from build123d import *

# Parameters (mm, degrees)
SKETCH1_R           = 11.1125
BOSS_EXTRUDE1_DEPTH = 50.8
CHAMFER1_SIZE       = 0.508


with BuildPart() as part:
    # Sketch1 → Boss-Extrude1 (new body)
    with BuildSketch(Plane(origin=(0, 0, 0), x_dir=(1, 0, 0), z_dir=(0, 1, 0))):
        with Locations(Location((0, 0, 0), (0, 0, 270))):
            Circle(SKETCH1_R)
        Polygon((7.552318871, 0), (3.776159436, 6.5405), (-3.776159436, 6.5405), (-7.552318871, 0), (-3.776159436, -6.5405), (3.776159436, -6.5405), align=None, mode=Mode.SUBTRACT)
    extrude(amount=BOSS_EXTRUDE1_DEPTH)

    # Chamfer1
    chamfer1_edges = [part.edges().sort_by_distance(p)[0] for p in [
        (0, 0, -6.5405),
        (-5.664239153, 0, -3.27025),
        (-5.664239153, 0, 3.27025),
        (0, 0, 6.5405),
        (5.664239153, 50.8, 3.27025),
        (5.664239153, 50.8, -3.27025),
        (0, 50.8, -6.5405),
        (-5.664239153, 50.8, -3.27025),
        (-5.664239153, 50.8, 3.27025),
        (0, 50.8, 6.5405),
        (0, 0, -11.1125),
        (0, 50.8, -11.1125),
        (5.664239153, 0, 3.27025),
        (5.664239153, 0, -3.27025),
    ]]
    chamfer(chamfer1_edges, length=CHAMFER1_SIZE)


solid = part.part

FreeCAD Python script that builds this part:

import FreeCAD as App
import Part
import Sketcher

V = App.Vector
Q = App.Units.Quantity


def edges_at(feature, points):
    """Names of the edges that pass closest to the given points."""
    edges = feature.Shape.Edges
    near = lambda p: min(range(len(edges)), key=lambda i: edges[i].distToShape(Part.Vertex(*p))[0])
    return sorted({f"Edge{near(p) + 1}" for p in points})


def add_polygon(sketch, points):
    """Adds a closed chain of lines whose ends are joined by coincident constraints."""
    first, n = sketch.GeometryCount, len(points)
    for a, b in zip(points, points[1:] + points[:1]):
        sketch.addGeometry(Part.LineSegment(App.Vector(*a, 0), App.Vector(*b, 0)), False)
    for i in range(n):
        sketch.addConstraint(Sketcher.Constraint("Coincident", first + i, 2, first + (i + 1) % n, 1))

doc = App.newDocument("Part")
body = doc.addObject("PartDesign::Body", "Body")

# Sketch on XZ plane
sketch1 = doc.addObject("Sketcher::SketchObject", "Sketch")
body.addObject(sketch1)
sketch1.AttachmentSupport = (doc.XZ_Plane, [""])
sketch1.MapMode = "FlatFace"
sketch1.addGeometry(Part.Circle(V(0, 0, 0), V(0, 0, 1), 11), False)  # 0
add_polygon(sketch1, [(4, -7), (8, 0), (4, 7), (-4, 7), (-8, 0), (-4, -7)])  # lines 1-6
sketch1.addConstraint([
    Sketcher.Constraint("Horizontal", 3),
    Sketcher.Constraint("Horizontal", 6),
    Sketcher.Constraint("Coincident", 0, 3, -1, 1),
    Sketcher.Constraint("Symmetric", 1, 2, 4, 2, -1, 1),
    Sketcher.Constraint("Symmetric", 2, 2, 5, 2, -1, 1),
    Sketcher.Constraint("PointOnObject", 1, 2, -1),
    Sketcher.Constraint("Parallel", 1, 4),
    Sketcher.Constraint("Vertical", 3, 2, 5, 2),
    Sketcher.Constraint("Diameter", 0, Q("0.875 in")),
    Sketcher.Constraint("Angle", 1, Q("60 deg")),
    Sketcher.Constraint("DistanceY", 5, 2, 3, 2, Q("0.515 in")),
    Sketcher.Constraint("DistanceX", 3, 2, 3, 1, Q("7.552319 mm")),
])
pad1 = doc.addObject("PartDesign::Pad", "Pad")
body.addObject(pad1)
pad1.Profile = sketch1
pad1.Length = Q("2 in")
pad1.Reversed = True
doc.recompute()

chamfer = doc.addObject("PartDesign::Chamfer", "Chamfer")
body.addObject(chamfer)
chamfer.Base = (pad1, edges_at(pad1, [
    (0, 0, -6.54),
    (-5.664, 0, -3.27),
    (-5.664, 0, 3.27),
    (0, 0, 6.54),
    (5.664, 50.8, 3.27),
    (5.664, 50.8, -3.27),
    (0, 50.8, -6.54),
    (-5.664, 50.8, -3.27),
    (-5.664, 50.8, 3.27),
    (0, 50.8, 6.54),
    (0, 0, -11.113),
    (0, 50.8, -11.113),
    (5.664, 0, 3.27),
    (5.664, 0, -3.27),
]))
chamfer.Size = Q("0.02 in")

doc.recompute()
